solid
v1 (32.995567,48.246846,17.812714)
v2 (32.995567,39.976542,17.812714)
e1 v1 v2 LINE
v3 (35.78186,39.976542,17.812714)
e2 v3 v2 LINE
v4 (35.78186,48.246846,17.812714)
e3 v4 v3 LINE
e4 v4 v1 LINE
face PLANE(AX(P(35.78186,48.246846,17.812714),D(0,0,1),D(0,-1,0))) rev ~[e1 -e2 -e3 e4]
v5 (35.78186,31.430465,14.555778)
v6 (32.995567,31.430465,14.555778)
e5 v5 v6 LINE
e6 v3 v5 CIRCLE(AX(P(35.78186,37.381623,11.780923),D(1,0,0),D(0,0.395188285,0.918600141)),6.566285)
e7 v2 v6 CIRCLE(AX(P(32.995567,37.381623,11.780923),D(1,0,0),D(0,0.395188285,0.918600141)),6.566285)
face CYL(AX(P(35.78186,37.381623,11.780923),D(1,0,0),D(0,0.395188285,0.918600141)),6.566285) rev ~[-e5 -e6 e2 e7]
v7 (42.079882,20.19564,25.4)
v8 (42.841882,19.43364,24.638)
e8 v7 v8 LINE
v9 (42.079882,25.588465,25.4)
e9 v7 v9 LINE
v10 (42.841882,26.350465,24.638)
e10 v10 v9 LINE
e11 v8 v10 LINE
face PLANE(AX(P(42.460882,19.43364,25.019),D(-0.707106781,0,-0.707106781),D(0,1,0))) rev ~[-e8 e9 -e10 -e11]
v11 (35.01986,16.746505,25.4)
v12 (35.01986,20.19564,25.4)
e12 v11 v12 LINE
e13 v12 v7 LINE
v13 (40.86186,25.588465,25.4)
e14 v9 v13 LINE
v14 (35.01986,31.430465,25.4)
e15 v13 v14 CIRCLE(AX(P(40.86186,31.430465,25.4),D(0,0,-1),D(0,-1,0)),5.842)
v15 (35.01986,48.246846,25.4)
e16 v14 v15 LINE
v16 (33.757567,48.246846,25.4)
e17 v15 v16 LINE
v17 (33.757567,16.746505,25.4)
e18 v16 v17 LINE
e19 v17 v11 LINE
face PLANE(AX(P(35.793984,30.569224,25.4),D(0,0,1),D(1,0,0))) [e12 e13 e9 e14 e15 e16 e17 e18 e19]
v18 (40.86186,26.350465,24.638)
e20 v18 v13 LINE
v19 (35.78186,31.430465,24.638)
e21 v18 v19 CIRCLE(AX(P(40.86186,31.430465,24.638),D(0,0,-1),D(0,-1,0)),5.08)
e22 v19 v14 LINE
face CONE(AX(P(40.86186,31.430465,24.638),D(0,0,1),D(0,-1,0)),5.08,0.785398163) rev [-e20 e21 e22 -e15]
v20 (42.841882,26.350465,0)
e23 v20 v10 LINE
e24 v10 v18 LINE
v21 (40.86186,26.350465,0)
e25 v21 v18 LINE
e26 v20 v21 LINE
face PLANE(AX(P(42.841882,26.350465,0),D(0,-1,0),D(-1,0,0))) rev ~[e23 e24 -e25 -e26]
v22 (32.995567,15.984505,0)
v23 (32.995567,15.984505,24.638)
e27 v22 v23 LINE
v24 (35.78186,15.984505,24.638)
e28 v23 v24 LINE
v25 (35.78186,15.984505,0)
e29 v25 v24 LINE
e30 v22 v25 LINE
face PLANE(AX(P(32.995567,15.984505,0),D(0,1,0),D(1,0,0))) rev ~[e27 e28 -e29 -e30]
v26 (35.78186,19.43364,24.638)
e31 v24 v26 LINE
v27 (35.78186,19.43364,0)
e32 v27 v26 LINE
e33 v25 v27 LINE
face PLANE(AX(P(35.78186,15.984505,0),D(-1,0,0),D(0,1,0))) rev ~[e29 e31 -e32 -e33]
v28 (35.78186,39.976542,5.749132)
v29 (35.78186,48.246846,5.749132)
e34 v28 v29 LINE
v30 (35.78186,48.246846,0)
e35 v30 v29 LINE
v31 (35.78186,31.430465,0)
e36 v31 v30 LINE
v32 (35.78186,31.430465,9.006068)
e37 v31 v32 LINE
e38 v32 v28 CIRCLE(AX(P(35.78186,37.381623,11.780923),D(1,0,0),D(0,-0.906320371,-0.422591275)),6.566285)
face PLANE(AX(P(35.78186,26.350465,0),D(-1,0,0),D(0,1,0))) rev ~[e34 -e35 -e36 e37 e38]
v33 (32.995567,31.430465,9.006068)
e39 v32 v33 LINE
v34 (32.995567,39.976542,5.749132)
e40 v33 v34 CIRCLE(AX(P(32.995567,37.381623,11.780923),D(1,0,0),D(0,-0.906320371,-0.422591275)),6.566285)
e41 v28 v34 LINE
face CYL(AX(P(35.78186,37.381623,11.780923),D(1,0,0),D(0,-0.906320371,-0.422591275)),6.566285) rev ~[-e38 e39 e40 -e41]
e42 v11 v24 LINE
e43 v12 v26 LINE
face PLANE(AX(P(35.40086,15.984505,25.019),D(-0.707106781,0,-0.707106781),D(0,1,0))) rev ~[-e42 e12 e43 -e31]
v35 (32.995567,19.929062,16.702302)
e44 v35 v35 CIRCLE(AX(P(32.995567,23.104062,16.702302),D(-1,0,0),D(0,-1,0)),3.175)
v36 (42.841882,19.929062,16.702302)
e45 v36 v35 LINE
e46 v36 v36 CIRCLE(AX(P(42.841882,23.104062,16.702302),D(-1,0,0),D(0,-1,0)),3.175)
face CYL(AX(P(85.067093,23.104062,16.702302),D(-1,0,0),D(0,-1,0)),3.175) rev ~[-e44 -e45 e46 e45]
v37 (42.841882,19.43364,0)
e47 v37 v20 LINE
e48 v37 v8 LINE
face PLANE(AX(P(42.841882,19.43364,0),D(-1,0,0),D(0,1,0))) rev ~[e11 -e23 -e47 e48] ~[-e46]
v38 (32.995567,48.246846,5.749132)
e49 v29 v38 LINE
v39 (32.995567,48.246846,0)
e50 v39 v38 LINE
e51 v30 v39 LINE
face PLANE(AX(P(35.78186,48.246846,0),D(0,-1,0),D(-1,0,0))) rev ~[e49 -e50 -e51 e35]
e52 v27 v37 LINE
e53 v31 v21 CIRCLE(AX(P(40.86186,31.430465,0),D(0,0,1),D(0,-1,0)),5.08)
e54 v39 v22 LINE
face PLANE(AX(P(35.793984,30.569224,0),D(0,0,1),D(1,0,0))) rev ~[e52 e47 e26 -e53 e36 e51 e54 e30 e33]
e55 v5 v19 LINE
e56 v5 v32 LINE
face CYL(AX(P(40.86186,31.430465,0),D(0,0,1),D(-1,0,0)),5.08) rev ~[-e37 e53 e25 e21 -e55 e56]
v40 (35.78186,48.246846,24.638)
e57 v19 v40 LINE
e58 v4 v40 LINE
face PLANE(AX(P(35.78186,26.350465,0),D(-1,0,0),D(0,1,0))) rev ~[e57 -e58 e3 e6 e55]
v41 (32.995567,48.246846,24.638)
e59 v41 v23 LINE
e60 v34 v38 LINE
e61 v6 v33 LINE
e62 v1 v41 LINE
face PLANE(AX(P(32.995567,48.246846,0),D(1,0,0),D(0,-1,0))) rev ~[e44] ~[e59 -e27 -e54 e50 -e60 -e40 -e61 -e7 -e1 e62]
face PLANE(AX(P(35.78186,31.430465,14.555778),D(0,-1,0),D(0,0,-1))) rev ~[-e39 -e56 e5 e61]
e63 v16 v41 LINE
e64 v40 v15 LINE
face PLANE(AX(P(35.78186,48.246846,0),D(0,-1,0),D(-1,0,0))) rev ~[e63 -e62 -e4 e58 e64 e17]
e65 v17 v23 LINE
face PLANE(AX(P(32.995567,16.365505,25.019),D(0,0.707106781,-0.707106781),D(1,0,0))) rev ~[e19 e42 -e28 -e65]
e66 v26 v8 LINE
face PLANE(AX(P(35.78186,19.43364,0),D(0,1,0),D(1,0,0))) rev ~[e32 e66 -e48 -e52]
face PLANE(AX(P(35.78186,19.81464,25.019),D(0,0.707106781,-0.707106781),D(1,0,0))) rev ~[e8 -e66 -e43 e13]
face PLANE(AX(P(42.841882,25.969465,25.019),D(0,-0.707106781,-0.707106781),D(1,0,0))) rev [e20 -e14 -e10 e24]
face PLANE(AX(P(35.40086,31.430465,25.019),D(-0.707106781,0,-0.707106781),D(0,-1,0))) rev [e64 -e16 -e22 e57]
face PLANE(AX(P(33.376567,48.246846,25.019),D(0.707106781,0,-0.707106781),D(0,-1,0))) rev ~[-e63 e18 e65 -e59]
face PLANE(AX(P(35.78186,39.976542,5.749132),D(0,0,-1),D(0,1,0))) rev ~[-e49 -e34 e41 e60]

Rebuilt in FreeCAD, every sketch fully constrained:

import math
import FreeCAD as App
import Part
import Sketcher
Q = App.Units.Quantity


def edges_at(feature, points):
    """Names of the edges that pass closest to the given points."""
    edges = feature.Shape.Edges
    near = lambda p: min(range(len(edges)), key=lambda i: edges[i].distToShape(Part.Vertex(*p))[0])
    return sorted({f"Edge{near(p) + 1}" for p in points})

doc = App.newDocument("Part")
body = doc.addObject("PartDesign::Body", "Body")

sketch1 = body.newObject("Sketcher::SketchObject", "Sketch")
sketch1.AttachmentSupport = (doc.getObject("XY_Plane"), [""])
sketch1.MapMode = "FlatFace"
sketch1.addGeometry([
    Part.LineSegment(App.Vector(35.8, 26.4, 0), App.Vector(35.8, 48.2, 0)),
    Part.LineSegment(App.Vector(35.8, 48.2, 0), App.Vector(33, 48.2, 0)),
    Part.LineSegment(App.Vector(33, 48.2, 0), App.Vector(33, 16, 0)),
    Part.LineSegment(App.Vector(33, 16, 0), App.Vector(35.8, 16, 0)),
    Part.LineSegment(App.Vector(35.8, 16, 0), App.Vector(35.8, 19.4, 0)),
    Part.LineSegment(App.Vector(35.8, 19.4, 0), App.Vector(42.8, 19.4, 0)),
    Part.LineSegment(App.Vector(42.8, 19.4, 0), App.Vector(42.8, 26.4, 0)),
    Part.LineSegment(App.Vector(42.8, 26.4, 0), App.Vector(35.8, 26.4, 0)),
], False)
sketch1.addConstraint([
    Sketcher.Constraint("Coincident", 0, 2, 1, 1),
    Sketcher.Constraint("Coincident", 1, 2, 2, 1),
    Sketcher.Constraint("Coincident", 2, 2, 3, 1),
    Sketcher.Constraint("Coincident", 3, 2, 4, 1),
    Sketcher.Constraint("Coincident", 4, 2, 5, 1),
    Sketcher.Constraint("Coincident", 5, 2, 6, 1),
    Sketcher.Constraint("Coincident", 6, 2, 7, 1),
    Sketcher.Constraint("Coincident", 7, 2, 0, 1),
    Sketcher.Constraint("Vertical", 0),
    Sketcher.Constraint("Horizontal", 1),
    Sketcher.Constraint("Vertical", 2),
    Sketcher.Constraint("Horizontal", 3),
    Sketcher.Constraint("Vertical", 4),
    Sketcher.Constraint("Horizontal", 5),
    Sketcher.Constraint("Vertical", 6),
    Sketcher.Constraint("Horizontal", 7),
    Sketcher.Constraint("Vertical", 0, 2, 3, 2),
    Sketcher.Constraint("DistanceX", 5, 1, 5, 2, 7.060021),
    Sketcher.Constraint("DistanceY", 0, 1, 0, 2, 21.896381),
    Sketcher.Constraint("DistanceY", 2, 2, 2, 1, 32.26234),
    Sketcher.Constraint("DistanceX", 1, 2, 1, 1, 2.786294),
    Sketcher.Constraint("DistanceY", 4, 1, 4, 2, 3.449135),
    Sketcher.Constraint("DistanceX", -1, 1, 0, 2, 35.78186),
    Sketcher.Constraint("DistanceY", -1, 1, 4, 2, 19.43364),
])
pad1 = body.newObject("PartDesign::Pad", "Pad")
pad1.Profile = sketch1
pad1.Length = Q("1 in")
doc.recompute()

fillet = body.newObject("PartDesign::Fillet", "Fillet")
fillet.Base = (pad1, edges_at(pad1, [(35.782, 26.35, 12.7)]))
fillet.Radius = Q("0.2 in")
doc.recompute()

chamfer = body.newObject("PartDesign::Chamfer", "Chamfer")
chamfer.Base = (fillet, edges_at(fillet, [
    (35.782, 39.839, 25.4),
    (42.842, 22.892, 25.4),
    (39.312, 19.434, 25.4),
    (35.782, 17.709, 25.4),
    (34.389, 15.985, 25.4),
    (32.996, 32.116, 25.4),
    (37.27, 27.838, 25.4),
    (41.852, 26.35, 25.4),
]))
chamfer.Size = Q("0.03 in")

sketch2 = body.newObject("Sketcher::SketchObject", "Sketch001")
sketch2.AttachmentSupport = (doc.getObject("YZ_Plane"), [""])
sketch2.MapMode = "FlatFace"
sketch2.AttachmentOffset = App.Placement(App.Vector(0, 0, 35.78186), App.Rotation())
sketch2.addGeometry([
    Part.LineSegment(App.Vector(48, 6, 0), App.Vector(48, 18, 0)),
    Part.LineSegment(App.Vector(48, 18, 0), App.Vector(40, 18, 0)),
    Part.ArcOfCircle(Part.Circle(App.Vector(37, 12, 0), App.Vector(0, 0, 1), 7), math.radians(67), math.radians(155)),
    Part.LineSegment(App.Vector(31, 15, 0), App.Vector(31, 9, 0)),
    Part.ArcOfCircle(Part.Circle(App.Vector(37, 12, 0), App.Vector(0, 0, 1), 7), math.radians(-155), math.radians(-67)),
    Part.LineSegment(App.Vector(40, 6, 0), App.Vector(48, 6, 0)),
], False)
sketch2.addConstraint([
    Sketcher.Constraint("Coincident", 0, 2, 1, 1),
    Sketcher.Constraint("Coincident", 1, 2, 2, 1),
    Sketcher.Constraint("Coincident", 2, 2, 3, 1),
    Sketcher.Constraint("Coincident", 3, 2, 4, 1),
    Sketcher.Constraint("Coincident", 4, 2, 5, 1),
    Sketcher.Constraint("Coincident", 5, 2, 0, 1),
    Sketcher.Constraint("Vertical", 0),
    Sketcher.Constraint("Horizontal", 1),
    Sketcher.Constraint("Vertical", 3),
    Sketcher.Constraint("Horizontal", 5),
    Sketcher.Constraint("Coincident", 4, 3, 2, 3),
    Sketcher.Constraint("Equal", 2, 4),
    Sketcher.Constraint("Vertical", 1, 2, 4, 2),
    Sketcher.Constraint("Radius", 2, 6.566285),
    Sketcher.Constraint("DistanceY", 0, 1, 0, 2, 12.063581),
    Sketcher.Constraint("DistanceY", 3, 2, 3, 1, 5.54971),
    Sketcher.Constraint("DistanceX", 1, 2, 1, 1, 8.270304),
    Sketcher.Constraint("DistanceY", -1, 1, 2, 2, 14.555778),
    Sketcher.Constraint("DistanceX", -1, 1, 2, 3, 37.381623),
])
pocket1 = body.newObject("PartDesign::Pocket", "Pocket")
pocket1.Profile = sketch2
pocket1.Length = Q("1 in")

sketch3 = body.newObject("Sketcher::SketchObject", "Sketch002")
sketch3.AttachmentSupport = (doc.getObject("YZ_Plane"), [""])
sketch3.MapMode = "FlatFace"
sketch3.AttachmentOffset = App.Placement(App.Vector(0, 0, 42.841882), App.Rotation())
sketch3.addGeometry(Part.Circle(App.Vector(23.1, 16.7, 0), App.Vector(0, 0, 1), 3.2), False)
sketch3.addConstraint([
    Sketcher.Constraint("Diameter", 0, Q("0.25 in")),
    Sketcher.Constraint("DistanceY", -1, 1, 0, 3, 16.702302),
    Sketcher.Constraint("DistanceX", -1, 1, 0, 3, 23.104062),
])
doc.recompute()
hole = body.newObject("PartDesign::Hole", "Hole")
hole.Profile = sketch3
hole.ThreadType = "None"
hole.Diameter = Q("0.25 in")
hole.DepthType = "ThroughAll"

doc.recompute()
